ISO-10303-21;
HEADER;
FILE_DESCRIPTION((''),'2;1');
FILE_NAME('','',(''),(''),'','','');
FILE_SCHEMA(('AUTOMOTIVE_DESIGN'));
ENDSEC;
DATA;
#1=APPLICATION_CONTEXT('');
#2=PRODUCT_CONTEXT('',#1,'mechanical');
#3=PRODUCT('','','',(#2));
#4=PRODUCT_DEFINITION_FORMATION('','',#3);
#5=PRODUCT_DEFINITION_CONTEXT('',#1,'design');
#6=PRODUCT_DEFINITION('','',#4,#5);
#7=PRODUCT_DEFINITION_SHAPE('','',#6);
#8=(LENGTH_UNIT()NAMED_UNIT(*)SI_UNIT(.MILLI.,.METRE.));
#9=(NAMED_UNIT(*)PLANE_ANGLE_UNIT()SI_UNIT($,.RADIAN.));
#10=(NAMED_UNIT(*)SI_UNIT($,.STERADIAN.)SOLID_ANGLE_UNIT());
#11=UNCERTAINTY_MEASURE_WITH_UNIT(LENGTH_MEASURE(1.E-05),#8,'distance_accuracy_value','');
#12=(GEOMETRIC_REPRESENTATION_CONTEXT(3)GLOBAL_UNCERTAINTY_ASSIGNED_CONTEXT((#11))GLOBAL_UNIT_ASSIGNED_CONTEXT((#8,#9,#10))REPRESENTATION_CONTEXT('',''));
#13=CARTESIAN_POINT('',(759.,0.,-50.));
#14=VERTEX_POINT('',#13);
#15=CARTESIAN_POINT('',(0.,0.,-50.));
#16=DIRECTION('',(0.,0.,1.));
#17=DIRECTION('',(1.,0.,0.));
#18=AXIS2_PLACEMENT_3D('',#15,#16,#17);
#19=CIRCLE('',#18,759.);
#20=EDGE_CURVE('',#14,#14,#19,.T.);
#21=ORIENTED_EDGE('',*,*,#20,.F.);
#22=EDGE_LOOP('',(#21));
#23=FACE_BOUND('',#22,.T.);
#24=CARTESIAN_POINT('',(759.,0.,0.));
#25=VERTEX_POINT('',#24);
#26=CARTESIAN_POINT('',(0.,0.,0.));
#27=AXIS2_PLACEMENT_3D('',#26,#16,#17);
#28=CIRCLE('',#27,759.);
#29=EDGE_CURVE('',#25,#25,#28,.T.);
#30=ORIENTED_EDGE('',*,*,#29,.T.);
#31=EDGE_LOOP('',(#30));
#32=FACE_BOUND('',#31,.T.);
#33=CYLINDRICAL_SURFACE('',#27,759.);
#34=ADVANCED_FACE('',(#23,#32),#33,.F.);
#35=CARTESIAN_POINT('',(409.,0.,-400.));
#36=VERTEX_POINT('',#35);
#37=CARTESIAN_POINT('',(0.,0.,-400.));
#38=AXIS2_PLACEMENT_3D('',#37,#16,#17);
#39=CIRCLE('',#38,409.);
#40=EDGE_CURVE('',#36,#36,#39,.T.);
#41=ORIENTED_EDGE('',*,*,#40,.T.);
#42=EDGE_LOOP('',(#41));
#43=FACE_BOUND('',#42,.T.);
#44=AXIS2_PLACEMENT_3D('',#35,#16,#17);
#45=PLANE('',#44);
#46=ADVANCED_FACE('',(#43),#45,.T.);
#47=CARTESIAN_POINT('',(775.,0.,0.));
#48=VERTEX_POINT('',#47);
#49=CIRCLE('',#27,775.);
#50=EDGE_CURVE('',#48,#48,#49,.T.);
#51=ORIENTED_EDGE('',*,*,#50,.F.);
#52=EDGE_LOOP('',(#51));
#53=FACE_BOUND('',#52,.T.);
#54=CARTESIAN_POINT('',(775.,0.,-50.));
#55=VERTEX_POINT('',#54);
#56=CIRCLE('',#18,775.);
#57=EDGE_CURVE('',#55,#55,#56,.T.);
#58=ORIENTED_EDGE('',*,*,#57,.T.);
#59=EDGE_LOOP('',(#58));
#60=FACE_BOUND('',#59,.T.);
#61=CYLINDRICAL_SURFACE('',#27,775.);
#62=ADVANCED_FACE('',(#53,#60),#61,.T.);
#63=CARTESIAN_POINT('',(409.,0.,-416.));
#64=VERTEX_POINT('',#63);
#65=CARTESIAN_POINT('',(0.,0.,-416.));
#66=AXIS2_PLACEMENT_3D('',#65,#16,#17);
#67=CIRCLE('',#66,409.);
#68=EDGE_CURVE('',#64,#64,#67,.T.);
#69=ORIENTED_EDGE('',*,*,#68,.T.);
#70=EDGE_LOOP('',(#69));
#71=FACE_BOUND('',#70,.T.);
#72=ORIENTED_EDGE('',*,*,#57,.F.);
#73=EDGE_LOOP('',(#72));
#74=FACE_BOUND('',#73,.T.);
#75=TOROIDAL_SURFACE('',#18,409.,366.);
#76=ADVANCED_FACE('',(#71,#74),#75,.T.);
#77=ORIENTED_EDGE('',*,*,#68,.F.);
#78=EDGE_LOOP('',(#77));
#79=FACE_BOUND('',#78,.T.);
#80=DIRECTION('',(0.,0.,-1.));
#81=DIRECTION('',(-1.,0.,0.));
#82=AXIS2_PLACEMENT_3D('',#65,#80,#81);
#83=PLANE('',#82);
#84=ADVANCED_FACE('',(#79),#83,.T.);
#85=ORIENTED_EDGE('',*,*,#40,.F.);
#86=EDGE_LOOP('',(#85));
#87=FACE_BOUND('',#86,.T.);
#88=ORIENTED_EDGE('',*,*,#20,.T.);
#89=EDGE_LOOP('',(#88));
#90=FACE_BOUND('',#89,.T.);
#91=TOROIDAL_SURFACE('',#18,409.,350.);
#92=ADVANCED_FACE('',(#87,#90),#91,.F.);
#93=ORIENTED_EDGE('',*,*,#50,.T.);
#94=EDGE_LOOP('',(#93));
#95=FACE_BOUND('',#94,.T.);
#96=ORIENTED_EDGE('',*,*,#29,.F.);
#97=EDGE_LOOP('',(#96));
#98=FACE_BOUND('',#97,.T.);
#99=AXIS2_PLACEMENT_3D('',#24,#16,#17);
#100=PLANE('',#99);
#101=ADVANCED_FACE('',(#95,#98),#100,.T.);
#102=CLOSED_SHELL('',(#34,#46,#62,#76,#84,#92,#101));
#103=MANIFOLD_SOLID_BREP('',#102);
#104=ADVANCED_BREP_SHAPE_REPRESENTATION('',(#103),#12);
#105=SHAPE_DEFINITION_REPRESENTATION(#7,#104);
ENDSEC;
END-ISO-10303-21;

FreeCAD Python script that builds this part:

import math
import FreeCAD as App
import Part
import Sketcher

doc = App.newDocument("Part")
body = doc.addObject("PartDesign::Body", "Body")

# Sketch on XZ plane
sketch1 = body.newObject("Sketcher::SketchObject", "Sketch")
sketch1.AttachmentSupport = (doc.getObject("XZ_Plane"), [""])
sketch1.MapMode = "FlatFace"
sketch1.addGeometry([
    Part.LineSegment(App.Vector(759, -50, 0), App.Vector(759, 0, 0)),  # 0
    Part.LineSegment(App.Vector(759, 0, 0), App.Vector(775, 0, 0)),  # 1
    Part.LineSegment(App.Vector(775, 0, 0), App.Vector(775, -50, 0)),  # 2
    Part.ArcOfCircle(Part.Circle(App.Vector(409, -50, 0), App.Vector(0, 0, 1), 366), math.radians(-90), math.radians(0)),  # 3
    Part.LineSegment(App.Vector(409, -416, 0), App.Vector(0, -416, 0)),  # 4
    Part.LineSegment(App.Vector(0, -416, 0), App.Vector(0, -400, 0)),  # 5
    Part.LineSegment(App.Vector(0, -400, 0), App.Vector(409, -400, 0)),  # 6
    Part.ArcOfCircle(Part.Circle(App.Vector(409, -50, 0), App.Vector(0, 0, 1), 350), math.radians(-90), math.radians(0)),  # 7
], False)
sketch1.addConstraint([
    Sketcher.Constraint("Coincident", 0, 2, 1, 1),
    Sketcher.Constraint("Coincident", 1, 2, 2, 1),
    Sketcher.Constraint("Tangent", 2, 2, 3, 2),
    Sketcher.Constraint("Tangent", 3, 1, 4, 1),
    Sketcher.Constraint("Coincident", 4, 2, 5, 1),
    Sketcher.Constraint("Coincident", 5, 2, 6, 1),
    Sketcher.Constraint("Tangent", 6, 2, 7, 1),
    Sketcher.Constraint("Tangent", 7, 2, 0, 1),
    Sketcher.Constraint("Vertical", 0),
    Sketcher.Constraint("Horizontal", 1),
    Sketcher.Constraint("Vertical", 2),
    Sketcher.Constraint("Horizontal", 4),
    Sketcher.Constraint("Vertical", 5),
    Sketcher.Constraint("Horizontal", 6),
    Sketcher.Constraint("Coincident", 7, 3, 3, 3),
    Sketcher.Constraint("PointOnObject", 0, 2, -1),
    Sketcher.Constraint("PointOnObject", 4, 2, -2),
    Sketcher.Constraint("Radius", 3, 366.0),
    Sketcher.Constraint("Radius", 7, 350.0),
    Sketcher.Constraint("DistanceX", 4, 2, 4, 1, 409.0),
    Sketcher.Constraint("DistanceY", 0, 1, 0, 2, 50.0),
])
revolution = body.newObject("PartDesign::Revolution", "Revolution")
revolution.Profile = sketch1
revolution.ReferenceAxis = (sketch1, ["V_Axis"])
revolution.Angle = 360

doc.recompute()
